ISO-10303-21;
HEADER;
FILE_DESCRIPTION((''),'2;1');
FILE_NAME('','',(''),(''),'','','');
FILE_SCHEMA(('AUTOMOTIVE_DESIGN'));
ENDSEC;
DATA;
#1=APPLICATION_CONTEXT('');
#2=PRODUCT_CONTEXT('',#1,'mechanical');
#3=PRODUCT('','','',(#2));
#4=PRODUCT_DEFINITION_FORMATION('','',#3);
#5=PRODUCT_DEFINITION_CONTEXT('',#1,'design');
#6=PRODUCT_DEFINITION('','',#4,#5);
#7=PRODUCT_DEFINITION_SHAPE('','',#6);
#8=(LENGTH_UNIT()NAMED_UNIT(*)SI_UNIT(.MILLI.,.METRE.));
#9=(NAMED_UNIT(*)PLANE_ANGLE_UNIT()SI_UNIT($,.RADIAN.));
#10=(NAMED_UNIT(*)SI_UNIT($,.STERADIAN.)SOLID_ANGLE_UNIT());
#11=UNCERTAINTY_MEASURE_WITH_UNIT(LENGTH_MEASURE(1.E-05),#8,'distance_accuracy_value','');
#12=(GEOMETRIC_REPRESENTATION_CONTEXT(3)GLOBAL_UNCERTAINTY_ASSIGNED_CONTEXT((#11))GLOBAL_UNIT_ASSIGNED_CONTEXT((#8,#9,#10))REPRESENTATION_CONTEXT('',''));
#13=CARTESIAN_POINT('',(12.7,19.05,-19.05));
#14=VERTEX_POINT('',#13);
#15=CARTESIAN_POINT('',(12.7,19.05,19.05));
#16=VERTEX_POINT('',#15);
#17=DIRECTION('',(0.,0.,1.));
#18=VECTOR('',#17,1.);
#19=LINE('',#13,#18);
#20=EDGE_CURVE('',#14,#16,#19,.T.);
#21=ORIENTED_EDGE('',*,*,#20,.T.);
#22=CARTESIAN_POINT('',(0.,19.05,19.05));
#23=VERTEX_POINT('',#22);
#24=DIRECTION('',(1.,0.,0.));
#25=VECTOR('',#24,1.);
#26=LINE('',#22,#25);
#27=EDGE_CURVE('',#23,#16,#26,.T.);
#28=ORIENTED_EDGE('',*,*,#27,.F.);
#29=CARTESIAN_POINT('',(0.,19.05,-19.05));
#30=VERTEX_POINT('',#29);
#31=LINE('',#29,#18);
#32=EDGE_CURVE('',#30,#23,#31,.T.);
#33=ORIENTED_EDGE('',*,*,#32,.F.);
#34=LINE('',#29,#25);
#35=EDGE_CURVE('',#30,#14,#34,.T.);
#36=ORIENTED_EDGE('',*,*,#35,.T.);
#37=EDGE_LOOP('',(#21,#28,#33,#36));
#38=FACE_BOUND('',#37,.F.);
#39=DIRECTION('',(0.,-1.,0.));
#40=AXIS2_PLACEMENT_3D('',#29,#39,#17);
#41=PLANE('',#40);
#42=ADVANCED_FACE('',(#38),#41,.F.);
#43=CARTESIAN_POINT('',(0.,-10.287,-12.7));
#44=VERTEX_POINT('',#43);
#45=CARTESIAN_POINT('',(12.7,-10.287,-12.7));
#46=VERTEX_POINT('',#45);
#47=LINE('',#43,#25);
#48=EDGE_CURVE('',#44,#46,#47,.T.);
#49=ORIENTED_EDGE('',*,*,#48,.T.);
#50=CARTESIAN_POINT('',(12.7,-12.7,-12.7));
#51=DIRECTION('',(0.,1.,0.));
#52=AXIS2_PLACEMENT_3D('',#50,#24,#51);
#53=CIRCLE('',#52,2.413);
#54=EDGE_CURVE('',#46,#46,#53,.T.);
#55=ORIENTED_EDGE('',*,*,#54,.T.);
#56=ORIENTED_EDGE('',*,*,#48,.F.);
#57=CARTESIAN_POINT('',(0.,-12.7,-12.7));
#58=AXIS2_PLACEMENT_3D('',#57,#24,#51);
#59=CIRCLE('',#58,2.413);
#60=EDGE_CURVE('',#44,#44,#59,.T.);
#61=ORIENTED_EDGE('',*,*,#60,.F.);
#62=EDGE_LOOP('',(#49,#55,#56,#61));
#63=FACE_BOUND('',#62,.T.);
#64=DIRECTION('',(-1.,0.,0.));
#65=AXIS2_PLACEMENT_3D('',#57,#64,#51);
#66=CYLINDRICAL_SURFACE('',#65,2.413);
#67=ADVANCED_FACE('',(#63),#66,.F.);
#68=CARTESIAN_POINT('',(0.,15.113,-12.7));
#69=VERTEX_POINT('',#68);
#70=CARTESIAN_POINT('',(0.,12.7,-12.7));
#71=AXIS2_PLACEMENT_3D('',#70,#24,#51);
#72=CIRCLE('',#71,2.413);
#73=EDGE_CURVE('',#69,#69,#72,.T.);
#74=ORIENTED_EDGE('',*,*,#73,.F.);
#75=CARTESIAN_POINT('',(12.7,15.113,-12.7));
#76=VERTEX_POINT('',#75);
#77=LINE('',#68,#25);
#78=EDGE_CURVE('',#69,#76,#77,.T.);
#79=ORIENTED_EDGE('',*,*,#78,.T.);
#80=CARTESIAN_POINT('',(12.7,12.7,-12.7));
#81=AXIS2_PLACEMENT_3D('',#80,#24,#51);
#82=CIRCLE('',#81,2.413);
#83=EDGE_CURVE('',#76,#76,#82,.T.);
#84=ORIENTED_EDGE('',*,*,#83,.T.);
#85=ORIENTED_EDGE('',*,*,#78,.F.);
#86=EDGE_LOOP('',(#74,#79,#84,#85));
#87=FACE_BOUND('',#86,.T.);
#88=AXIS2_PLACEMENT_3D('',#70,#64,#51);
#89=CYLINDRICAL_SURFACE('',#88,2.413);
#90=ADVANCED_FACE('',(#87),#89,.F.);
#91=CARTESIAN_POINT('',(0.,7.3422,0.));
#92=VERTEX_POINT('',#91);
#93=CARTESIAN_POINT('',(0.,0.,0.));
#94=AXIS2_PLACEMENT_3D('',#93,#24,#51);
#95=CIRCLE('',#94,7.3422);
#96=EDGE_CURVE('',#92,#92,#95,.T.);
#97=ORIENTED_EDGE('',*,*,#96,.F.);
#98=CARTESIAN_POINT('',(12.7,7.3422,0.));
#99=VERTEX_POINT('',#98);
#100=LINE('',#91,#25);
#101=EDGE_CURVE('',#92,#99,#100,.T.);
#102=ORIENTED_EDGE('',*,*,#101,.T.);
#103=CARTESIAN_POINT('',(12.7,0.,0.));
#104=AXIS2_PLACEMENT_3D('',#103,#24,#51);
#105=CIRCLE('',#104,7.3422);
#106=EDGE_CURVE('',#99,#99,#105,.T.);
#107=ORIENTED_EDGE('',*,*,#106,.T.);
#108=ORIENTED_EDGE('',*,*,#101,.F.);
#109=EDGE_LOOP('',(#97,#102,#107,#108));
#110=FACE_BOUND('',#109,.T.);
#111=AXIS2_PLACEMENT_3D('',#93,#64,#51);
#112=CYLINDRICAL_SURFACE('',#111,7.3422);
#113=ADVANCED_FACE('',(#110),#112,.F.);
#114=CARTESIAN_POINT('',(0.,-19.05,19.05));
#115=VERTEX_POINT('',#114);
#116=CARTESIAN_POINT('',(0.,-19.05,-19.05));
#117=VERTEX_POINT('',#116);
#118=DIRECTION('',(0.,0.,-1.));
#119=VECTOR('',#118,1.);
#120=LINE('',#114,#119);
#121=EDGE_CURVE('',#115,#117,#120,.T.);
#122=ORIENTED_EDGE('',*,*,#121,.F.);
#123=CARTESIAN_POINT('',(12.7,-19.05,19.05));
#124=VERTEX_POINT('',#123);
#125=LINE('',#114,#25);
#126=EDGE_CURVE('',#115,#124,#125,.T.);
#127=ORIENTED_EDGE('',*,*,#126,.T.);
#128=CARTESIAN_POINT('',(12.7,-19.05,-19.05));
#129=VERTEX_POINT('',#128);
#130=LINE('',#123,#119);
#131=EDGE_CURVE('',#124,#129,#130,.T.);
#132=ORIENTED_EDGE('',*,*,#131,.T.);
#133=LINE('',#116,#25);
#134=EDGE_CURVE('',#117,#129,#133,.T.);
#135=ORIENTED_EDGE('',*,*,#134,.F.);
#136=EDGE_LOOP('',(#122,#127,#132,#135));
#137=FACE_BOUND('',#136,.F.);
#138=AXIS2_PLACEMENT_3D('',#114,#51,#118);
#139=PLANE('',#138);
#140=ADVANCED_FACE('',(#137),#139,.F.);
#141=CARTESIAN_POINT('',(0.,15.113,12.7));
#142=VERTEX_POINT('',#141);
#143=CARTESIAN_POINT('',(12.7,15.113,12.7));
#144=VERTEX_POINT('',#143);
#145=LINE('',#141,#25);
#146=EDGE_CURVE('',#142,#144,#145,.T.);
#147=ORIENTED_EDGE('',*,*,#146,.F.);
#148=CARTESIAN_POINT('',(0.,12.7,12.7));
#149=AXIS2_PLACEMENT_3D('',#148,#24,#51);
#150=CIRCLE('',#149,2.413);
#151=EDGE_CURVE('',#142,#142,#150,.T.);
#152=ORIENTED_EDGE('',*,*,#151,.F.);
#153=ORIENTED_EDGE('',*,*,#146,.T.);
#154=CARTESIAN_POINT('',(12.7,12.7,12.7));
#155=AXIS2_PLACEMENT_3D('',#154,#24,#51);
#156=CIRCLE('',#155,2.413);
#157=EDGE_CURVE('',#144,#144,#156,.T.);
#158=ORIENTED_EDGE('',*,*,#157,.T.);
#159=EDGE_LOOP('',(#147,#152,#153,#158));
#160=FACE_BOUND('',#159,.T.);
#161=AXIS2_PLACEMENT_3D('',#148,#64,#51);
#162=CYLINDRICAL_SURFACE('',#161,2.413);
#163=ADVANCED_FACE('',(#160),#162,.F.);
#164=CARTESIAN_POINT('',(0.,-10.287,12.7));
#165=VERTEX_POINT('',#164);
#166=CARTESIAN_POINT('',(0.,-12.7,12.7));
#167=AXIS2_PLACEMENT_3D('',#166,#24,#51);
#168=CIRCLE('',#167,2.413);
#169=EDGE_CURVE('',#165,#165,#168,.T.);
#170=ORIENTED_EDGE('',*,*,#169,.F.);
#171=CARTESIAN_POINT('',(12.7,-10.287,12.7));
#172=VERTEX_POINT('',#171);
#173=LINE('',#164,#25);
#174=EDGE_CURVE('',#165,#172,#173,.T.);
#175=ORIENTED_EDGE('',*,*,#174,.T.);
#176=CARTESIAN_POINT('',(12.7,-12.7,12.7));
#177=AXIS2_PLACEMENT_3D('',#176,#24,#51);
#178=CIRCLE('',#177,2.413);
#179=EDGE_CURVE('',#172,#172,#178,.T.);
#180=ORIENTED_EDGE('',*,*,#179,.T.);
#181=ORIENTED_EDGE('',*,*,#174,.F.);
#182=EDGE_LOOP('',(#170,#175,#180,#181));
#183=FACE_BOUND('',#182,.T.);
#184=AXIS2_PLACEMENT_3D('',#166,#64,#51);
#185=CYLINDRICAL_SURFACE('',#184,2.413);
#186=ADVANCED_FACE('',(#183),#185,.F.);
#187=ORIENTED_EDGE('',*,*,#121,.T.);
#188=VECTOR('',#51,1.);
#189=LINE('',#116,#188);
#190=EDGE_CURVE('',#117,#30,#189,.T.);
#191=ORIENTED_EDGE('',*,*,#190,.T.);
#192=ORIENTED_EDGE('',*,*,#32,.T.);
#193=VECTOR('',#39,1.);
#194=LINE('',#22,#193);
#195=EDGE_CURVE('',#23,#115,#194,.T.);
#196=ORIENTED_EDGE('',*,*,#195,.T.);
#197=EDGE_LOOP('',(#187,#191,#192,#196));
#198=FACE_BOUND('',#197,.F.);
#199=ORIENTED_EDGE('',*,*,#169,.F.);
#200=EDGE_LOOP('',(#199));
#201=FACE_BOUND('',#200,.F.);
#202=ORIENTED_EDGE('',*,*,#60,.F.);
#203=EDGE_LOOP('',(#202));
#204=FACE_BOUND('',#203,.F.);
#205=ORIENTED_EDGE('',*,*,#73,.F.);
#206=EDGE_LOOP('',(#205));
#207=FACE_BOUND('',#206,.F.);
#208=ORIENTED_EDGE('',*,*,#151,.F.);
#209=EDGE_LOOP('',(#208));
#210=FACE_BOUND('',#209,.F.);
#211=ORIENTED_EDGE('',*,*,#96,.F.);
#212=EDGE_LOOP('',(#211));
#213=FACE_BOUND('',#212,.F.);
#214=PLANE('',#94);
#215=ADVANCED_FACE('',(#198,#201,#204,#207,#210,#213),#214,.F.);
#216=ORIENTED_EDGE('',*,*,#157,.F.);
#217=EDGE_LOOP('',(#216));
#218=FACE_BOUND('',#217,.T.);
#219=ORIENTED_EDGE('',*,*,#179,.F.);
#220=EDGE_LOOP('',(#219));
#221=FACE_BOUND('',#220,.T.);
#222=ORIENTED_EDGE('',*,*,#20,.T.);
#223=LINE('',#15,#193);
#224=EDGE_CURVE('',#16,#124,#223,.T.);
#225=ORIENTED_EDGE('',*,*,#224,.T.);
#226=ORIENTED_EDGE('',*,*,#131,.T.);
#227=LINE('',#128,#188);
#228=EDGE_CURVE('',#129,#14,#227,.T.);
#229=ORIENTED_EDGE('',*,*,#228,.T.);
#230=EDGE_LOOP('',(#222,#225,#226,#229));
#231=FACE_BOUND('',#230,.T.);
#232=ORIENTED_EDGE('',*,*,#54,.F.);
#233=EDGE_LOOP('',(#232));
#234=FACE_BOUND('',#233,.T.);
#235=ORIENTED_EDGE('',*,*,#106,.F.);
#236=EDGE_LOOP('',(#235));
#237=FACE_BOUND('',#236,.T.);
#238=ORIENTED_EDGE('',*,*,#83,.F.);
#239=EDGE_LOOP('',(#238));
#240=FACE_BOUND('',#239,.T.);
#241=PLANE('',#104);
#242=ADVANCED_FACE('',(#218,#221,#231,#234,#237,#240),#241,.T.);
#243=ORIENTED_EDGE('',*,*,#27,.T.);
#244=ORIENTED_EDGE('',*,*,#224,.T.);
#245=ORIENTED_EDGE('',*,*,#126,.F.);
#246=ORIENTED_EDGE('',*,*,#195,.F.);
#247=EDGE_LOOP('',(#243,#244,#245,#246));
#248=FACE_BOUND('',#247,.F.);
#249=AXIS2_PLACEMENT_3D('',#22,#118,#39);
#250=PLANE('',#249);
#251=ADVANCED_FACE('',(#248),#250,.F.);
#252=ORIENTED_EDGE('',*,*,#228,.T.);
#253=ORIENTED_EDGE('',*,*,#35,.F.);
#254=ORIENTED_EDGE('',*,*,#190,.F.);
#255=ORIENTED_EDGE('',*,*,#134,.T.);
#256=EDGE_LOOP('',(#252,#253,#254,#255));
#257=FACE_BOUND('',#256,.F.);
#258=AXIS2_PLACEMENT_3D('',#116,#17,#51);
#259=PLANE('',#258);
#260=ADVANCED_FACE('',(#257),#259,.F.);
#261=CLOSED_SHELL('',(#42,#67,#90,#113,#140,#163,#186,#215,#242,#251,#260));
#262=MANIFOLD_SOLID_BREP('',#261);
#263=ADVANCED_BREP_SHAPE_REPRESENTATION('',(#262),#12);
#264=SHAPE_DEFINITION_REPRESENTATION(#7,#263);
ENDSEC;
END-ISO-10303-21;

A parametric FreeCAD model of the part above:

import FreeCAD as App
import Part
import Sketcher

V = App.Vector
Q = App.Units.Quantity

doc = App.newDocument("Part")
params = doc.addObject("Spreadsheet::Sheet", "Params")
for row, (alias, value) in enumerate([
    ("sketch1_diameter", "0.19 in"),
    ("sketch1_diameter2", "0.578126 in"),
    ("sketch1_width", "1.5 in"),
    ("pad1_length", "0.5 in"),
], start=1):
    params.set(f"A{row}", alias)
    params.set(f"B{row}", "=" + value)
    params.setAlias(f"B{row}", alias)

body = doc.addObject("PartDesign::Body", "Body")

# Sketch on YZ plane
sketch1 = body.newObject("Sketcher::SketchObject", "Sketch")
sketch1.AttachmentSupport = (doc.getObject("YZ_Plane"), [""])
sketch1.MapMode = "FlatFace"
sketch1.addGeometry([
    Part.LineSegment(V(19.1, -19.1, 0), V(19.1, 19.1, 0)),  # 0
    Part.LineSegment(V(19.1, 19.1, 0), V(-19.1, 19.1, 0)),  # 1
    Part.LineSegment(V(-19.1, 19.1, 0), V(-19.1, -19.1, 0)),  # 2
    Part.LineSegment(V(-19.1, -19.1, 0), V(19.1, -19.1, 0)),  # 3
    Part.Circle(V(-12.7, -12.7, 0), V(0, 0, 1), 2.4),  # 4
    Part.Circle(V(12.7, -12.7, 0), V(0, 0, 1), 2.4),  # 5
    Part.Circle(V(-12.7, 12.7, 0), V(0, 0, 1), 2.4),  # 6
    Part.Circle(V(0, 0, 0), V(0, 0, 1), 7.3),  # 7
    Part.Circle(V(12.7, 12.7, 0), V(0, 0, 1), 2.4),  # 8
], False)
sketch1.addConstraint([
    Sketcher.Constraint("Coincident", 0, 2, 1, 1),
    Sketcher.Constraint("Coincident", 1, 2, 2, 1),
    Sketcher.Constraint("Coincident", 2, 2, 3, 1),
    Sketcher.Constraint("Coincident", 3, 2, 0, 1),
    Sketcher.Constraint("Vertical", 0),
    Sketcher.Constraint("Horizontal", 1),
    Sketcher.Constraint("Vertical", 2),
    Sketcher.Constraint("Horizontal", 3),
    Sketcher.Constraint("Coincident", 7, 3, -1, 1),
    Sketcher.Constraint("Equal", 4, 5),
    Sketcher.Constraint("Equal", 5, 6),
    Sketcher.Constraint("Equal", 6, 8),
    Sketcher.Constraint("Symmetric", 5, 3, 6, 3, -1, 1),
    Sketcher.Constraint("Symmetric", 4, 3, 8, 3, -1, 1),
    Sketcher.Constraint("Symmetric", 0, 2, 2, 2, -1, 1),
    Sketcher.Constraint("Symmetric", 4, 3, 5, 3, -2),
    Sketcher.Constraint("Equal", 3, 0),
    Sketcher.Constraint("Diameter", 4, Q("0.19 in")),
    Sketcher.Constraint("Diameter", 7, Q("0.578126 in")),
    Sketcher.Constraint("DistanceX", 1, 2, 1, 1, Q("1.5 in")),
    Sketcher.Constraint("DistanceX", 4, 3, 5, 3, Q("1 in")),
    Sketcher.Constraint("DistanceY", 4, 3, 6, 3, Q("1 in")),
])
sketch1.setExpression("Constraints[17]", "Params.sketch1_diameter")
sketch1.setExpression("Constraints[18]", "Params.sketch1_diameter2")
sketch1.setExpression("Constraints[19]", "Params.sketch1_width")
pad1 = body.newObject("PartDesign::Pad", "Pad")
pad1.Profile = sketch1
pad1.setExpression("Length", "Params.pad1_length")

doc.recompute()
